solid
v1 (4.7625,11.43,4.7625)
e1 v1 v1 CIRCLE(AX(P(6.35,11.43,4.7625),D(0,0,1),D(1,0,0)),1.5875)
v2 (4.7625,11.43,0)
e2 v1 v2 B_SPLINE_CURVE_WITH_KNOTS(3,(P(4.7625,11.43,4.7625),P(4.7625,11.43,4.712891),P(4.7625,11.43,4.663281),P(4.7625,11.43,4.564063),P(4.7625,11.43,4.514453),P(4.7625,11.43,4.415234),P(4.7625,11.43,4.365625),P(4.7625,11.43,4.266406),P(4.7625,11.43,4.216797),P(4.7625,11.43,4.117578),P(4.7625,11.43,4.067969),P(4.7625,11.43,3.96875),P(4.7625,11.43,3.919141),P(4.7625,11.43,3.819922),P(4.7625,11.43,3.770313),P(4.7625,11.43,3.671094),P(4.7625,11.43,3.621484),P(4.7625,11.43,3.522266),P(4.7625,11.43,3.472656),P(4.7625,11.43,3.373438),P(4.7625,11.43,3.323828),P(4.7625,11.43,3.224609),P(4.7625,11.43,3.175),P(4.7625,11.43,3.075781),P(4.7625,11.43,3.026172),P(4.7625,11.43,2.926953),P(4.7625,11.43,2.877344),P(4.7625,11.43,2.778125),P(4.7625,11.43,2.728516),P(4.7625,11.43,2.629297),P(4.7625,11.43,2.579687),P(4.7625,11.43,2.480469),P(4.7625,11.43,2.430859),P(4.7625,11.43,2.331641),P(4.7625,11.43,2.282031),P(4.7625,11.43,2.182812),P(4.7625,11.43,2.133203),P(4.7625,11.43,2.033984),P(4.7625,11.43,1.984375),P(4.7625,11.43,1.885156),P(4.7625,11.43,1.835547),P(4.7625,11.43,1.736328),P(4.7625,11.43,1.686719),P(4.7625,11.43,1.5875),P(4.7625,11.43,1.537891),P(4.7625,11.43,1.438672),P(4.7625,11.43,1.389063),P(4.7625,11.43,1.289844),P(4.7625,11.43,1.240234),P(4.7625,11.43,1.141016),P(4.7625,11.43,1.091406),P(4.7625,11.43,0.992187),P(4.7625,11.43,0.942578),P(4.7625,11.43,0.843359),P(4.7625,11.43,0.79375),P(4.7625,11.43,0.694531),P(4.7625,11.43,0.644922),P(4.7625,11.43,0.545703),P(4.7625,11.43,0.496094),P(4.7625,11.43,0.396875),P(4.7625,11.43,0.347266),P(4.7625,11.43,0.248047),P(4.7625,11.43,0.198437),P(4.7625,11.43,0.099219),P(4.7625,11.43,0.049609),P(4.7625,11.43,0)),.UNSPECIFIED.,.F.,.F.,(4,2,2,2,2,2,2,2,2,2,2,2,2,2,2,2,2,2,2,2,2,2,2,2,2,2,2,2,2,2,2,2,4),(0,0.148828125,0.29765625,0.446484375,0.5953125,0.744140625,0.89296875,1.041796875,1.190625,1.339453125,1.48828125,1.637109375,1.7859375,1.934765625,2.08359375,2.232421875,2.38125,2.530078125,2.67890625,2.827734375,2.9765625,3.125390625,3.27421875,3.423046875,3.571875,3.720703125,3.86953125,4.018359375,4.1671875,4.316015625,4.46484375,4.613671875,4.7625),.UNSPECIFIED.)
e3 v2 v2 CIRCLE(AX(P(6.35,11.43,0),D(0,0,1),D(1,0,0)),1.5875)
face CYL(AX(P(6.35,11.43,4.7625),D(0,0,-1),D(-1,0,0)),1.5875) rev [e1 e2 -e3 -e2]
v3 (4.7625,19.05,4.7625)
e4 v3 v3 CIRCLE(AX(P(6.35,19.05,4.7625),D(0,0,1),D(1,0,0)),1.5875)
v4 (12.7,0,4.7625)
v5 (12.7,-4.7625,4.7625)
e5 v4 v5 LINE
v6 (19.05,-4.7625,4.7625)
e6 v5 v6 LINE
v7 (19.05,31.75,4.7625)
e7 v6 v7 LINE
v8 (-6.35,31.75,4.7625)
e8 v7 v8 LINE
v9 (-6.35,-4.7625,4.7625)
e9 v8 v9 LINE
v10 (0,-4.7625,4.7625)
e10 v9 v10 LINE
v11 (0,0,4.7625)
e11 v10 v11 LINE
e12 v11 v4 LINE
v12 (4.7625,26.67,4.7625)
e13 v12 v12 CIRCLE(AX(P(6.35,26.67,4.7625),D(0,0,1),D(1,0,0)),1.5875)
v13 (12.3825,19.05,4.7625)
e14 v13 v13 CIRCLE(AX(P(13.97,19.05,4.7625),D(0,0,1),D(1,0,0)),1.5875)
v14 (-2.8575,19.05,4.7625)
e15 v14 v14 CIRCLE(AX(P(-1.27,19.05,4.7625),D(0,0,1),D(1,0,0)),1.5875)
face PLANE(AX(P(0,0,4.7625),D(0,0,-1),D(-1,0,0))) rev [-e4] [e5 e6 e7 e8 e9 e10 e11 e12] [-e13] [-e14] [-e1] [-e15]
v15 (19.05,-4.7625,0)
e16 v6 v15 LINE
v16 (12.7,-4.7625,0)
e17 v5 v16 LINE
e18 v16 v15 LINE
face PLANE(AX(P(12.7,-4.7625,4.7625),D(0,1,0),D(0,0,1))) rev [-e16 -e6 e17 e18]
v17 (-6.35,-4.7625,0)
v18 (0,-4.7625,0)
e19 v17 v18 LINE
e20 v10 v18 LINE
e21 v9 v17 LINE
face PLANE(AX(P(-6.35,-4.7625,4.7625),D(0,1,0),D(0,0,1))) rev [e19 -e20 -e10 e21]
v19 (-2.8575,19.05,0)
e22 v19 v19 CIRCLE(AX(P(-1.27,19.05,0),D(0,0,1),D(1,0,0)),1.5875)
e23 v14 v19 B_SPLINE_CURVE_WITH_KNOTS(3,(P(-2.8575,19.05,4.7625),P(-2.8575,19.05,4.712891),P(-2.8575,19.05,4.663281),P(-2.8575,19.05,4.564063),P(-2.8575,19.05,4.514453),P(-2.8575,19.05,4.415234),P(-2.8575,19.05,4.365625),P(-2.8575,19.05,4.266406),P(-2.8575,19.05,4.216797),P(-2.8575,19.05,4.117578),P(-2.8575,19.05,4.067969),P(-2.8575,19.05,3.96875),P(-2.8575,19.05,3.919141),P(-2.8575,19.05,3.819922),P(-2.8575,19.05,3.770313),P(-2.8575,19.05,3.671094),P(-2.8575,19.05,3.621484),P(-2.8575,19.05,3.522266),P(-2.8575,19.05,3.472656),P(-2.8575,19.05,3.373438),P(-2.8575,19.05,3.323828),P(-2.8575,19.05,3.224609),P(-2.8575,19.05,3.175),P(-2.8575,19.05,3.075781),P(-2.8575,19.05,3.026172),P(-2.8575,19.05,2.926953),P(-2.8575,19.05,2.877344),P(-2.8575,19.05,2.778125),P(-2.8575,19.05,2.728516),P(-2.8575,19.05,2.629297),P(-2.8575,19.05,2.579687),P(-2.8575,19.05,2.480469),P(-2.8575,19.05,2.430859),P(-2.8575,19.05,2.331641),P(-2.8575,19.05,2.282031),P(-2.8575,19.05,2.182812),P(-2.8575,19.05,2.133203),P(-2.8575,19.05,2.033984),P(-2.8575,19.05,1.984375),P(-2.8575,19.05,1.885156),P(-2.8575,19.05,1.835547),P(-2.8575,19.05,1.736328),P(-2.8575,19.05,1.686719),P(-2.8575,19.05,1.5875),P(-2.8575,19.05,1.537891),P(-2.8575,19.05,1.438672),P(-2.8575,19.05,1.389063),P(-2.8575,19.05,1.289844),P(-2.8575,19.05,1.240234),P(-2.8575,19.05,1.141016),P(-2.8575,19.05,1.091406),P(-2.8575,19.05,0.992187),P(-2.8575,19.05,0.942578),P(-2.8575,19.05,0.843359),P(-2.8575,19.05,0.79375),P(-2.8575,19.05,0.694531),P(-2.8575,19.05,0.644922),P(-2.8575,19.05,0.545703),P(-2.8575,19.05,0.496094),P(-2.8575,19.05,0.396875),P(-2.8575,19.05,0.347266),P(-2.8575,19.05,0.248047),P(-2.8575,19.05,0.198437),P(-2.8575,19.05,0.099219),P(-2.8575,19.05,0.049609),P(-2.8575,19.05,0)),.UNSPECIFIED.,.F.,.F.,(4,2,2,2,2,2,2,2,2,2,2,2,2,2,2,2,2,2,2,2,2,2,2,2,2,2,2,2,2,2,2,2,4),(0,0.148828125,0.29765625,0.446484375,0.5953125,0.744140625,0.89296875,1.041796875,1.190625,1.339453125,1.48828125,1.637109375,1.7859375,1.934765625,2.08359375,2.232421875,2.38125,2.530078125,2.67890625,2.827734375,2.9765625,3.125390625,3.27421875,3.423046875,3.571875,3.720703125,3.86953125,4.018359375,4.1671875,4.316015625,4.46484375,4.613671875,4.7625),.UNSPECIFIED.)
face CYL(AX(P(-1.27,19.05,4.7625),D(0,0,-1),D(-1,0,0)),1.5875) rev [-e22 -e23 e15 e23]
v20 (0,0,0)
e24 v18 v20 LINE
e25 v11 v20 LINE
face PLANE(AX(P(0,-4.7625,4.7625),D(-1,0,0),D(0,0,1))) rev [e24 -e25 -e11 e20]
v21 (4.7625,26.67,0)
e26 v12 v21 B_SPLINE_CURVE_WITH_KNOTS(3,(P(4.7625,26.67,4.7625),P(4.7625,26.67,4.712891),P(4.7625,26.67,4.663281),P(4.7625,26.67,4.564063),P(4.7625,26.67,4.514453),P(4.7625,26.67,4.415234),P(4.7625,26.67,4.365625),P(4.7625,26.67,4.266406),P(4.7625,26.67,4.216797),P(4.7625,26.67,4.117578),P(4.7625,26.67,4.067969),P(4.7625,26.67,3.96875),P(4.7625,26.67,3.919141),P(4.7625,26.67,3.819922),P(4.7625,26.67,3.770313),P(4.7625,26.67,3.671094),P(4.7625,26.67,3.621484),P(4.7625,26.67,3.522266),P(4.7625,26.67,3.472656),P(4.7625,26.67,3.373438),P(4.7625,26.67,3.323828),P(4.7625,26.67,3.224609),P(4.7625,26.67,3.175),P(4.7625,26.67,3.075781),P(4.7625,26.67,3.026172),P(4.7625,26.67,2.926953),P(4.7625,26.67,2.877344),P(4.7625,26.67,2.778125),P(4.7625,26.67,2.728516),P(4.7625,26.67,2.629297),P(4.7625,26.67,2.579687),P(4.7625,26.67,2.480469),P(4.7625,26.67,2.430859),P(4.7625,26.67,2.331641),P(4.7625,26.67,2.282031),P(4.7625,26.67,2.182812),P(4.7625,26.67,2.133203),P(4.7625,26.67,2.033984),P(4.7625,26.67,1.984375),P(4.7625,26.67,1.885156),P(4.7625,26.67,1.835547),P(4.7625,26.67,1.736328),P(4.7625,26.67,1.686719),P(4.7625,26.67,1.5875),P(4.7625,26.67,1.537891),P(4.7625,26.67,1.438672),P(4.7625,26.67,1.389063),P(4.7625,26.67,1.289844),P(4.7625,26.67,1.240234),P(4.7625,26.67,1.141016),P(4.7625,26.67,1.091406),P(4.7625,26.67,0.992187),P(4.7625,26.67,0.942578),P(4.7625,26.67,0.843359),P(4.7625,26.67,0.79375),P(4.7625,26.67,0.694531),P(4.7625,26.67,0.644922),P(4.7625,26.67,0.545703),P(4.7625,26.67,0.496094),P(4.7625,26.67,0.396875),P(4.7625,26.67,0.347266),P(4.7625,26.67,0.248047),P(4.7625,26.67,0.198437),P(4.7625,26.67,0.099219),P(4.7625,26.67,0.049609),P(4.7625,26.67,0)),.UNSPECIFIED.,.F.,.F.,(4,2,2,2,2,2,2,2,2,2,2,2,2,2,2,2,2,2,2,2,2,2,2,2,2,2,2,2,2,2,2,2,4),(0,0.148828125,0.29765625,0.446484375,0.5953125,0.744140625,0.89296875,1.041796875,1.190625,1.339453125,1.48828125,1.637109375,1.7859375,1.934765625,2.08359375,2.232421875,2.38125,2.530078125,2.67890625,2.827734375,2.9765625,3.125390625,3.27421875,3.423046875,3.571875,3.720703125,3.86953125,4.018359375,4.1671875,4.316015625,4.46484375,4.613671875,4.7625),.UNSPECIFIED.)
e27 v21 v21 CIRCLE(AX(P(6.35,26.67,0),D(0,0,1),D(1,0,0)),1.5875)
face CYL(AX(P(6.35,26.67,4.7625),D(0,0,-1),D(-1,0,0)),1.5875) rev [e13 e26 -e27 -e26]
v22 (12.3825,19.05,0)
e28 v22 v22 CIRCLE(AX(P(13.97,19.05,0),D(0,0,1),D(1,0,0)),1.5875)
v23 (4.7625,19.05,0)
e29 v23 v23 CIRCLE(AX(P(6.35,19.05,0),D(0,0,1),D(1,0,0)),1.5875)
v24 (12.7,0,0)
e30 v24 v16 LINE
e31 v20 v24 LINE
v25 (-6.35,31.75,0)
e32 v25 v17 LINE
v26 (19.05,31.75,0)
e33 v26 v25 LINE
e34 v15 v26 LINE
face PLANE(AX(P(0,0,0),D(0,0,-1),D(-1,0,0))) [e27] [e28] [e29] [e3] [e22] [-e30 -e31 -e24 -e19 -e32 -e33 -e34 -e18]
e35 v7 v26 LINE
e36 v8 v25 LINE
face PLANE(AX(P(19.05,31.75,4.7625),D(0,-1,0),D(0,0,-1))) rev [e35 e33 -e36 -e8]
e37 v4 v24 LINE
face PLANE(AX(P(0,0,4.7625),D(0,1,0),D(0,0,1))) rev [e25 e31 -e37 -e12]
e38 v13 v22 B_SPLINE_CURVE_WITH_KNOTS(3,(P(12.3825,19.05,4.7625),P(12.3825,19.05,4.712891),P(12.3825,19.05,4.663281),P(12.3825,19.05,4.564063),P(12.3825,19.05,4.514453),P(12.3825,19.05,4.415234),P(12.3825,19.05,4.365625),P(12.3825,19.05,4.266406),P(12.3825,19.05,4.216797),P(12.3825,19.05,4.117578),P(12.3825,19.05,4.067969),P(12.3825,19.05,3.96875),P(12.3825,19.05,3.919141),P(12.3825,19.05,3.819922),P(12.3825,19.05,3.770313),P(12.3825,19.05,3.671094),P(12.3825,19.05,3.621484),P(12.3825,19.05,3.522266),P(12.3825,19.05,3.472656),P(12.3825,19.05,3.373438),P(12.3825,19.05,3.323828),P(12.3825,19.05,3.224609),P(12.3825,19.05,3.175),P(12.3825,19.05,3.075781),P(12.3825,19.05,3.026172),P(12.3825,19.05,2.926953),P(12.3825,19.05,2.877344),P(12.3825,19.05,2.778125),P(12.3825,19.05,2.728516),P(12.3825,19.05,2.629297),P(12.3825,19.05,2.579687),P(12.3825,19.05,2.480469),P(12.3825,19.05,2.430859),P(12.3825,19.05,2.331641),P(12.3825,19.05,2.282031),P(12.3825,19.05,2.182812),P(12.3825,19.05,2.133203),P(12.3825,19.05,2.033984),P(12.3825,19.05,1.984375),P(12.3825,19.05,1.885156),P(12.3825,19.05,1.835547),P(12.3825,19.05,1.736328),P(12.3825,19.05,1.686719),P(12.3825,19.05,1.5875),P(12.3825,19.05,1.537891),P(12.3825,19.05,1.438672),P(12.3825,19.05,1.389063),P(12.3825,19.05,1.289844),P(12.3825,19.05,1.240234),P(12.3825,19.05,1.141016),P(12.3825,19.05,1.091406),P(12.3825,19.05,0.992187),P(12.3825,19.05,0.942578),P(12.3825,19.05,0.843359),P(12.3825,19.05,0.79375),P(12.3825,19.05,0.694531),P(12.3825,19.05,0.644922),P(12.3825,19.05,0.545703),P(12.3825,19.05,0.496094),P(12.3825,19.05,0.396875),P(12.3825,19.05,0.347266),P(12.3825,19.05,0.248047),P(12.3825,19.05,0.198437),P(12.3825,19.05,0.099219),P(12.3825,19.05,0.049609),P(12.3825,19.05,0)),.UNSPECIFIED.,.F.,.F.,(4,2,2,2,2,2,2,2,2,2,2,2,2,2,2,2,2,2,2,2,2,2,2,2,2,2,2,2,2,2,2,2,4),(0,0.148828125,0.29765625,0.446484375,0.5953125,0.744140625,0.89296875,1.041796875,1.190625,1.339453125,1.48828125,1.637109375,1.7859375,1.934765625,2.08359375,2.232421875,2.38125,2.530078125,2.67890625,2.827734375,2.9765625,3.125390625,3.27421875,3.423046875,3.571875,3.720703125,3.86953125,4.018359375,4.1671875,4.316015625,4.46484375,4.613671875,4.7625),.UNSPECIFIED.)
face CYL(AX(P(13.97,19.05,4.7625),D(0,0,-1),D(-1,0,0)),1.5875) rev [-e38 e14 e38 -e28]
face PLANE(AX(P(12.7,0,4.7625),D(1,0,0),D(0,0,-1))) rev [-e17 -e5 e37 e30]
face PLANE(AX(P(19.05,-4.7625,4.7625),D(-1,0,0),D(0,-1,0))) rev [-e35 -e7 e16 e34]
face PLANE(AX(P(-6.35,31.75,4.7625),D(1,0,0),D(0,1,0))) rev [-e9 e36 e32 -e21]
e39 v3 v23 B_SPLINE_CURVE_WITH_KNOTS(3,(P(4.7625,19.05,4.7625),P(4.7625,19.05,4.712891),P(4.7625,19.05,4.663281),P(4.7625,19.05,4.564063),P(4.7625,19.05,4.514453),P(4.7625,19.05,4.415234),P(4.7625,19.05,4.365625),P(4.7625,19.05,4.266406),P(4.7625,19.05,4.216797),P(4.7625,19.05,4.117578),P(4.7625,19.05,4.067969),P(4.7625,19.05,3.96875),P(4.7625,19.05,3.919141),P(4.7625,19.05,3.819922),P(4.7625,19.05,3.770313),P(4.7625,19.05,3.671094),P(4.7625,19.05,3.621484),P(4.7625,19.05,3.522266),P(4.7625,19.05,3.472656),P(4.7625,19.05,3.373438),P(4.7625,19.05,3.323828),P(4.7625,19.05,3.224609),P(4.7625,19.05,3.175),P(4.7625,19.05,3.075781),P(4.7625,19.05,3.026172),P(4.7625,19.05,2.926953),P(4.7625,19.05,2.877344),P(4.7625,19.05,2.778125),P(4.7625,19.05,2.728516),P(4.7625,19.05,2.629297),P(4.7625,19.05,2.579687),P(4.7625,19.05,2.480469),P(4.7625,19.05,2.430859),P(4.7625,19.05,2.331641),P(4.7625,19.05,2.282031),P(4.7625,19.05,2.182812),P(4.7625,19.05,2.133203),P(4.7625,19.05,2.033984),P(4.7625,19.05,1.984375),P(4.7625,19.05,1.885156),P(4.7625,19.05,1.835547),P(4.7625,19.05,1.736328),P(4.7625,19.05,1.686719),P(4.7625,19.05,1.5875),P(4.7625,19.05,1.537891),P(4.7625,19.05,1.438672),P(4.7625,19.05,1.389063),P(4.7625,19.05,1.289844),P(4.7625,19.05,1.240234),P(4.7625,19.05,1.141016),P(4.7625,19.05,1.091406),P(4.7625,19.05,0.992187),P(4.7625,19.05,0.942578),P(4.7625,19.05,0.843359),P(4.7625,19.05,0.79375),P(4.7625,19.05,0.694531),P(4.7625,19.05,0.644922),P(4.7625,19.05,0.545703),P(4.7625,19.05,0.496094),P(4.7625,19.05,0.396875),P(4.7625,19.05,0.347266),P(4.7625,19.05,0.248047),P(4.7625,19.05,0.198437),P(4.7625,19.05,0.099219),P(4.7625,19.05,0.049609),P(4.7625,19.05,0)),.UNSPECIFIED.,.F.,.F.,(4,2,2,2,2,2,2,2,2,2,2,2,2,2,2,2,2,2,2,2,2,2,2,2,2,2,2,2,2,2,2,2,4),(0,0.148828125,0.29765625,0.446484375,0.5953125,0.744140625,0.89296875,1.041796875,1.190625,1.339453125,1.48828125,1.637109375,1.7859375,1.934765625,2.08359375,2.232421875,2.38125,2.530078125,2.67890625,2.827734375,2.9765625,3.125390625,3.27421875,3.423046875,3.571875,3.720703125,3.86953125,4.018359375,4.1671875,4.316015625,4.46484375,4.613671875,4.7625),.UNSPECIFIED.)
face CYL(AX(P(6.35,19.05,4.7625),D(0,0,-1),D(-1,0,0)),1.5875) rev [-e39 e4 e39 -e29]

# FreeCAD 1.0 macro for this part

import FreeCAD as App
import Part
import Sketcher
from FreeCAD import Vector
Q = App.Units.Quantity

doc = App.newDocument("Part")
params = doc.addObject("Spreadsheet::Sheet", "Params")
for row, (alias, value) in enumerate([
    ("sketch1_width", "1 in"),
    ("sketch1_diameter", "0.125 in"),
    ("sketch1_width2", "0.5 in"),
    ("sketch1_height", "0.1875 in"),
    ("sketch1_height2", "1.4375 in"),
    ("pad1_length", "0.1875 in"),
], start=1):
    params.set(f"A{row}", alias)
    params.set(f"B{row}", "=" + value)
    params.setAlias(f"B{row}", alias)

body = doc.addObject("PartDesign::Body", "Body")

# Sketch on XY plane
sketch1 = body.newObject("Sketcher::SketchObject", "Sketch")
sketch1.AttachmentSupport = (doc.getObject("XY_Plane"), [""])
sketch1.MapMode = "FlatFace"
sketch1.addGeometry(Part.LineSegment(Vector(0, 0, 0), Vector(12.7, 0, 0)), False)
sketch1.addGeometry(Part.LineSegment(Vector(12.7, 0, 0), Vector(12.7, -4.7625, 0)), False)
sketch1.addGeometry(Part.LineSegment(Vector(12.7, -4.7625, 0), Vector(19.05, -4.7625, 0)), False)
sketch1.addGeometry(Part.LineSegment(Vector(19.05, -4.7625, 0), Vector(19.05, 31.75, 0)), False)
sketch1.addGeometry(Part.LineSegment(Vector(19.05, 31.75, 0), Vector(-6.35, 31.75, 0)), False)
sketch1.addGeometry(Part.LineSegment(Vector(-6.35, 31.75, 0), Vector(-6.35, -4.7625, 0)), False)
sketch1.addGeometry(Part.LineSegment(Vector(-6.35, -4.7625, 0), Vector(0, -4.7625, 0)), False)
sketch1.addGeometry(Part.LineSegment(Vector(0, -4.7625, 0), Vector(0, 0, 0)), False)
sketch1.addGeometry(Part.Circle(Vector(6.35, 11.43, 0), Vector(0, 0, 1), 1.5875), False)
sketch1.addGeometry(Part.Circle(Vector(-1.27, 19.05, 0), Vector(0, 0, 1), 1.5875), False)
sketch1.addGeometry(Part.Circle(Vector(6.35, 19.05, 0), Vector(0, 0, 1), 1.5875), False)
sketch1.addGeometry(Part.Circle(Vector(6.35, 26.67, 0), Vector(0, 0, 1), 1.5875), False)
sketch1.addGeometry(Part.Circle(Vector(13.97, 19.05, 0), Vector(0, 0, 1), 1.5875), False)
sketch1.addConstraint(Sketcher.Constraint("Coincident", 0, 2, 1, 1))
sketch1.addConstraint(Sketcher.Constraint("Coincident", 1, 2, 2, 1))
sketch1.addConstraint(Sketcher.Constraint("Coincident", 2, 2, 3, 1))
sketch1.addConstraint(Sketcher.Constraint("Coincident", 3, 2, 4, 1))
sketch1.addConstraint(Sketcher.Constraint("Coincident", 4, 2, 5, 1))
sketch1.addConstraint(Sketcher.Constraint("Coincident", 5, 2, 6, 1))
sketch1.addConstraint(Sketcher.Constraint("Coincident", 6, 2, 7, 1))
sketch1.addConstraint(Sketcher.Constraint("Coincident", 7, 2, 0, 1))
sketch1.addConstraint(Sketcher.Constraint("Horizontal", 0))
sketch1.addConstraint(Sketcher.Constraint("Vertical", 1))
sketch1.addConstraint(Sketcher.Constraint("Horizontal", 2))
sketch1.addConstraint(Sketcher.Constraint("Vertical", 3))
sketch1.addConstraint(Sketcher.Constraint("Horizontal", 4))
sketch1.addConstraint(Sketcher.Constraint("Vertical", 5))
sketch1.addConstraint(Sketcher.Constraint("Horizontal", 6))
sketch1.addConstraint(Sketcher.Constraint("Vertical", 7))
sketch1.addConstraint(Sketcher.Constraint("Coincident", 7, 2, -1, 1))
sketch1.addConstraint(Sketcher.Constraint("Equal", 8, 9))
sketch1.addConstraint(Sketcher.Constraint("Equal", 9, 10))
sketch1.addConstraint(Sketcher.Constraint("Equal", 10, 11))
sketch1.addConstraint(Sketcher.Constraint("Equal", 11, 12))
sketch1.addConstraint(Sketcher.Constraint("Horizontal", 9, 3, 10, 3))
sketch1.addConstraint(Sketcher.Constraint("Horizontal", 10, 3, 12, 3))
sketch1.addConstraint(Sketcher.Constraint("Horizontal", 2, 2, 5, 2))
sketch1.addConstraint(Sketcher.Constraint("Vertical", 8, 3, 10, 3))
sketch1.addConstraint(Sketcher.Constraint("Vertical", 10, 3, 11, 3))
sketch1.addConstraint(Sketcher.Constraint("Equal", 2, 6))
sketch1.addConstraint(Sketcher.Constraint("DistanceX", 4, 2, 4, 1, Q("1 in")))
sketch1.addConstraint(Sketcher.Constraint("Diameter", 8, Q("0.125 in")))
sketch1.addConstraint(Sketcher.Constraint("DistanceX", 0, 1, 0, 2, Q("0.5 in")))
sketch1.addConstraint(Sketcher.Constraint("DistanceX", 9, 3, 8, 3, Q("0.3 in")))
sketch1.addConstraint(Sketcher.Constraint("DistanceY", 8, 3, 9, 3, Q("0.3 in")))
sketch1.addConstraint(Sketcher.Constraint("DistanceY", 10, 3, 11, 3, Q("0.3 in")))
sketch1.addConstraint(Sketcher.Constraint("DistanceX", 10, 3, 12, 3, Q("0.3 in")))
sketch1.addConstraint(Sketcher.Constraint("DistanceX", 8, 3, 2, 2, Q("0.5 in")))
sketch1.addConstraint(Sketcher.Constraint("DistanceY", 12, 3, 3, 2, Q("0.5 in")))
sketch1.addConstraint(Sketcher.Constraint("DistanceY", 1, 2, 1, 1, Q("0.1875 in")))
sketch1.addConstraint(Sketcher.Constraint("DistanceY", 3, 1, 3, 2, Q("1.4375 in")))
sketch1.setExpression("Constraints[27]", "Params.sketch1_width")
sketch1.setExpression("Constraints[28]", "Params.sketch1_diameter")
sketch1.setExpression("Constraints[29]", "Params.sketch1_width2")
sketch1.setExpression("Constraints[36]", "Params.sketch1_height")
sketch1.setExpression("Constraints[37]", "Params.sketch1_height2")
pad1 = body.newObject("PartDesign::Pad", "Pad")
pad1.Profile = sketch1
pad1.setExpression("Length", "Params.pad1_length")

doc.recompute()
